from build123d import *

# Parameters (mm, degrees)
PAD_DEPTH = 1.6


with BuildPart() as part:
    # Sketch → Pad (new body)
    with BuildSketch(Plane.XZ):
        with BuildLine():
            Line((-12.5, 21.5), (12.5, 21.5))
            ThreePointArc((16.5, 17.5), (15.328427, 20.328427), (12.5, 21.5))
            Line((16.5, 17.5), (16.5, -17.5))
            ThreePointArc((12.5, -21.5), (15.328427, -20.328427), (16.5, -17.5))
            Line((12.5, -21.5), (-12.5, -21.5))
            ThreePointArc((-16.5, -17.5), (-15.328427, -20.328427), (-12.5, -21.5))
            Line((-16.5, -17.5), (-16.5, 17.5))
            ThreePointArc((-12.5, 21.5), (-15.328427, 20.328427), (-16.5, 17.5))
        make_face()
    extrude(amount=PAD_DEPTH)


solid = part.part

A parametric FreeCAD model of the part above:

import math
import FreeCAD as App
import Part
import Sketcher

V = App.Vector
Q = App.Units.Quantity

doc = App.newDocument("Part")
params = doc.addObject("Spreadsheet::Sheet", "Params")
for row, (alias, value) in enumerate([
    ("sketch1_radius", "4 mm"),
    ("sketch1_width", "25 mm"),
    ("sketch1_height", "35 mm"),
    ("pad1_length", "1.6 mm"),
], start=1):
    params.set(f"A{row}", alias)
    params.set(f"B{row}", "=" + value)
    params.setAlias(f"B{row}", alias)

body = doc.addObject("PartDesign::Body", "Body")

sketch1 = doc.addObject("Sketcher::SketchObject", "Sketch")
body.addObject(sketch1)
sketch1.AttachmentSupport = (doc.XZ_Plane, [""])
sketch1.MapMode = "FlatFace"
sketch1.addGeometry([
    Part.LineSegment(V(12.5, 21.5, 0), V(-12.5, 21.5, 0)),
    Part.ArcOfCircle(Part.Circle(V(-12.5, 17.5, 0), V(0, 0, 1), 4), math.radians(90.000006), math.radians(179.999994)),
    Part.LineSegment(V(-16.5, 17.5, 0), V(-16.5, -17.5, 0)),
    Part.ArcOfCircle(Part.Circle(V(-12.5, -17.5, 0), V(0, 0, 1), 4), math.radians(-179.999994), math.radians(-90.000006)),
    Part.LineSegment(V(-12.5, -21.5, 0), V(12.5, -21.5, 0)),
    Part.ArcOfCircle(Part.Circle(V(12.5, -17.5, 0), V(0, 0, 1), 4), math.radians(-89.999994), math.radians(-0.000006)),
    Part.LineSegment(V(16.5, -17.5, 0), V(16.5, 17.5, 0)),
    Part.ArcOfCircle(Part.Circle(V(12.5, 17.5, 0), V(0, 0, 1), 4), math.radians(0.000006), math.radians(89.999994)),
], False)
sketch1.addConstraint([
    Sketcher.Constraint("Tangent", 0, 2, 1, 1),
    Sketcher.Constraint("Tangent", 1, 2, 2, 1),
    Sketcher.Constraint("Tangent", 2, 2, 3, 1),
    Sketcher.Constraint("Tangent", 3, 2, 4, 1),
    Sketcher.Constraint("Tangent", 4, 2, 5, 1),
    Sketcher.Constraint("Tangent", 5, 2, 6, 1),
    Sketcher.Constraint("Tangent", 6, 2, 7, 1),
    Sketcher.Constraint("Tangent", 7, 2, 0, 1),
    Sketcher.Constraint("Horizontal", 0),
    Sketcher.Constraint("Vertical", 2),
    Sketcher.Constraint("Horizontal", 4),
    Sketcher.Constraint("Vertical", 6),
    Sketcher.Constraint("Equal", 1, 3),
    Sketcher.Constraint("Equal", 3, 5),
    Sketcher.Constraint("Equal", 5, 7),
    Sketcher.Constraint("Symmetric", 1, 3, 5, 3, -1, 1),
    Sketcher.Constraint("Radius", 1, Q("4 mm")),
    Sketcher.Constraint("DistanceX", 0, 2, 0, 1, Q("25 mm")),
    Sketcher.Constraint("DistanceY", 2, 2, 2, 1, Q("35 mm")),
])
sketch1.setExpression("Constraints[16]", "Params.sketch1_radius")
sketch1.setExpression("Constraints[17]", "Params.sketch1_width")
sketch1.setExpression("Constraints[18]", "Params.sketch1_height")
pad1 = doc.addObject("PartDesign::Pad", "Pad")
body.addObject(pad1)
pad1.Profile = sketch1
pad1.setExpression("Length", "Params.pad1_length")

doc.recompute()
